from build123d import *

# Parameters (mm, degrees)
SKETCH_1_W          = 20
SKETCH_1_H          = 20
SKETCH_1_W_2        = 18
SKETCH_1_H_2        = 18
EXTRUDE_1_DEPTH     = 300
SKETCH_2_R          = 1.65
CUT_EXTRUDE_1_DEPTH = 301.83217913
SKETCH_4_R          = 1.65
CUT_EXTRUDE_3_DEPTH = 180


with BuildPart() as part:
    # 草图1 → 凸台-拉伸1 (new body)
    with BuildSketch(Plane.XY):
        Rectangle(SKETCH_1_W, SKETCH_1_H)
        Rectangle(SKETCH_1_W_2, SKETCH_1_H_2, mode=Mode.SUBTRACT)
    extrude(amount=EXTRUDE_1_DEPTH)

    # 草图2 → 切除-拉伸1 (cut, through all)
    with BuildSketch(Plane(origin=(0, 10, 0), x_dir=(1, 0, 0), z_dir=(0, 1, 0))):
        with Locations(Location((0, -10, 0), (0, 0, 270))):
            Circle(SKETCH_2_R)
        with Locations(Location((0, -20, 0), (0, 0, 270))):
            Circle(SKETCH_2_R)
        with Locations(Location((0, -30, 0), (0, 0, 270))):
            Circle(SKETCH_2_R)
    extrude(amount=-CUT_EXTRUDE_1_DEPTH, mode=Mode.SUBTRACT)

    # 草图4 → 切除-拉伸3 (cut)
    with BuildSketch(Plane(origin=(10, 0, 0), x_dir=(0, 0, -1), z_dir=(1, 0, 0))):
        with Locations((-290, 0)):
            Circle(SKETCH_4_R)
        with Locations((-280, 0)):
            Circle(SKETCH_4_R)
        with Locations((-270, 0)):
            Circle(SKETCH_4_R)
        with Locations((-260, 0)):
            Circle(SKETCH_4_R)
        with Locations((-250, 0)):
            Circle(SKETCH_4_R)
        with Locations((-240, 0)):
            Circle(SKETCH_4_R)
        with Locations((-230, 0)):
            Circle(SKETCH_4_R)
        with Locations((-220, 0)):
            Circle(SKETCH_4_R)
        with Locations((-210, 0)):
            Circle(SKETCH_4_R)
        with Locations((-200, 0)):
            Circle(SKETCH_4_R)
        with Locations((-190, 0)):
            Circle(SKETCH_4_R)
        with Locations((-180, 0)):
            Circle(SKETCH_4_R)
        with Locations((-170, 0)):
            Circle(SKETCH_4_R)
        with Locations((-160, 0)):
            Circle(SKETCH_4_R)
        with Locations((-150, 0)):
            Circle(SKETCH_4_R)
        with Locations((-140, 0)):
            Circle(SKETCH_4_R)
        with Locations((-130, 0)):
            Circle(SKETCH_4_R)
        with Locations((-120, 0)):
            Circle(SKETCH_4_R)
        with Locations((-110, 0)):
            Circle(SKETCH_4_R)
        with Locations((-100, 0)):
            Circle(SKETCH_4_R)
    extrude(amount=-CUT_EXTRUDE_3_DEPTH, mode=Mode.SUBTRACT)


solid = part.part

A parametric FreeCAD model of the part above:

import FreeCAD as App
import Part
import Sketcher

V = App.Vector
Q = App.Units.Quantity


def add_polygon(sketch, points):
    """Adds a closed chain of lines whose ends are joined by coincident constraints."""
    first, n = sketch.GeometryCount, len(points)
    for a, b in zip(points, points[1:] + points[:1]):
        sketch.addGeometry(Part.LineSegment(App.Vector(*a, 0), App.Vector(*b, 0)), False)
    for i in range(n):
        sketch.addConstraint(Sketcher.Constraint("Coincident", first + i, 2, first + (i + 1) % n, 1))

doc = App.newDocument("Part")
params = doc.addObject("Spreadsheet::Sheet", "Params")
for row, (alias, value) in enumerate([
    ("sketch1_width", "20 mm"),
    ("sketch1_width2", "18 mm"),
    ("pad1_length", "300 mm"),
    ("sketch2_diameter", "3.3 mm"),
    ("sketch3_diameter", "3.3 mm"),
    ("pocket2_length", "180 mm"),
], start=1):
    params.set(f"A{row}", alias)
    params.set(f"B{row}", "=" + value)
    params.setAlias(f"B{row}", alias)

body = doc.addObject("PartDesign::Body", "Body")

sketch1 = body.newObject("Sketcher::SketchObject", "Sketch")
sketch1.AttachmentSupport = (doc.getObject("XY_Plane"), [""])
sketch1.MapMode = "FlatFace"
add_polygon(sketch1, [(-10, 10), (-10, -10), (10, -10), (10, 10)])
add_polygon(sketch1, [(9, -9), (-9, -9), (-9, 9), (9, 9)])
sketch1.addConstraint([
    Sketcher.Constraint("Vertical", 0),
    Sketcher.Constraint("Horizontal", 1),
    Sketcher.Constraint("Vertical", 2),
    Sketcher.Constraint("Horizontal", 3),
    Sketcher.Constraint("Horizontal", 4),
    Sketcher.Constraint("Vertical", 5),
    Sketcher.Constraint("Horizontal", 6),
    Sketcher.Constraint("Vertical", 7),
    Sketcher.Constraint("Symmetric", 0, 2, 2, 2, -1, 1),
    Sketcher.Constraint("Symmetric", 4, 2, 6, 2, -1, 1),
    Sketcher.Constraint("Equal", 3, 0),
    Sketcher.Constraint("Equal", 6, 5),
    Sketcher.Constraint("DistanceX", 1, 1, 1, 2, Q("20 mm")),
    Sketcher.Constraint("DistanceX", 4, 2, 4, 1, Q("18 mm")),
])
sketch1.setExpression("Constraints[20]", "Params.sketch1_width")
sketch1.setExpression("Constraints[21]", "Params.sketch1_width2")
pad1 = body.newObject("PartDesign::Pad", "Pad")
pad1.Profile = sketch1
pad1.setExpression("Length", "Params.pad1_length")

sketch2 = body.newObject("Sketcher::SketchObject", "Sketch001")
sketch2.AttachmentSupport = (doc.getObject("XZ_Plane"), [""])
sketch2.MapMode = "FlatFace"
sketch2.AttachmentOffset = App.Placement(V(0, 0, -10), App.Rotation())
sketch2.addGeometry([
    Part.Circle(V(0, 10, 0), V(0, 0, 1), 1.6),
    Part.Circle(V(0, 20, 0), V(0, 0, 1), 1.6),
    Part.Circle(V(0, 30, 0), V(0, 0, 1), 1.6),
], False)
sketch2.addConstraint([
    Sketcher.Constraint("Equal", 0, 1),
    Sketcher.Constraint("Equal", 1, 2),
    Sketcher.Constraint("PointOnObject", 0, 3, -2),
    Sketcher.Constraint("PointOnObject", 1, 3, -2),
    Sketcher.Constraint("PointOnObject", 2, 3, -2),
    Sketcher.Constraint("Diameter", 0, Q("3.3 mm")),
    Sketcher.Constraint("DistanceY", -1, 1, 0, 3, Q("10 mm")),
    Sketcher.Constraint("DistanceY", -1, 1, 1, 3, Q("20 mm")),
    Sketcher.Constraint("DistanceY", -1, 1, 2, 3, Q("30 mm")),
])
sketch2.setExpression("Constraints[5]", "Params.sketch2_diameter")
pocket1 = body.newObject("PartDesign::Pocket", "Pocket")
pocket1.Profile = sketch2
pocket1.Type = "ThroughAll"
pocket1.Reversed = True

sketch3 = body.newObject("Sketcher::SketchObject", "Sketch002")
sketch3.AttachmentSupport = (doc.getObject("YZ_Plane"), [""])
sketch3.MapMode = "FlatFace"
sketch3.AttachmentOffset = App.Placement(V(0, 0, 10), App.Rotation())
sketch3.addGeometry([
    Part.Circle(V(0, 290, 0), V(0, 0, 1), 1.6),
    Part.Circle(V(0, 280, 0), V(0, 0, 1), 1.6),
    Part.Circle(V(0, 270, 0), V(0, 0, 1), 1.6),
    Part.Circle(V(0, 260, 0), V(0, 0, 1), 1.6),
    Part.Circle(V(0, 250, 0), V(0, 0, 1), 1.6),
    Part.Circle(V(0, 240, 0), V(0, 0, 1), 1.6),
    Part.Circle(V(0, 230, 0), V(0, 0, 1), 1.6),
    Part.Circle(V(0, 220, 0), V(0, 0, 1), 1.6),
    Part.Circle(V(0, 210, 0), V(0, 0, 1), 1.6),
    Part.Circle(V(0, 200, 0), V(0, 0, 1), 1.6),
    Part.Circle(V(0, 190, 0), V(0, 0, 1), 1.6),
    Part.Circle(V(0, 180, 0), V(0, 0, 1), 1.6),
    Part.Circle(V(0, 170, 0), V(0, 0, 1), 1.6),
    Part.Circle(V(0, 160, 0), V(0, 0, 1), 1.6),
    Part.Circle(V(0, 150, 0), V(0, 0, 1), 1.6),
    Part.Circle(V(0, 140, 0), V(0, 0, 1), 1.6),
    Part.Circle(V(0, 130, 0), V(0, 0, 1), 1.6),
    Part.Circle(V(0, 120, 0), V(0, 0, 1), 1.6),
    Part.Circle(V(0, 110, 0), V(0, 0, 1), 1.6),
    Part.Circle(V(0, 100, 0), V(0, 0, 1), 1.6),
], False)
sketch3.addConstraint([
    Sketcher.Constraint("Equal", 0, 1),
    Sketcher.Constraint("Equal", 1, 2),
    Sketcher.Constraint("Equal", 2, 3),
    Sketcher.Constraint("Equal", 3, 4),
    Sketcher.Constraint("Equal", 4, 5),
    Sketcher.Constraint("Equal", 5, 6),
    Sketcher.Constraint("Equal", 6, 7),
    Sketcher.Constraint("Equal", 7, 8),
    Sketcher.Constraint("Equal", 8, 9),
    Sketcher.Constraint("Equal", 9, 10),
    Sketcher.Constraint("Equal", 10, 11),
    Sketcher.Constraint("Equal", 11, 12),
    Sketcher.Constraint("Equal", 12, 13),
    Sketcher.Constraint("Equal", 13, 14),
    Sketcher.Constraint("Equal", 14, 15),
    Sketcher.Constraint("Equal", 15, 16),
    Sketcher.Constraint("Equal", 16, 17),
    Sketcher.Constraint("Equal", 17, 18),
    Sketcher.Constraint("Equal", 18, 19),
    Sketcher.Constraint("PointOnObject", 0, 3, -2),
    Sketcher.Constraint("PointOnObject", 1, 3, -2),
    Sketcher.Constraint("PointOnObject", 2, 3, -2),
    Sketcher.Constraint("PointOnObject", 3, 3, -2),
    Sketcher.Constraint("PointOnObject", 4, 3, -2),
    Sketcher.Constraint("PointOnObject", 5, 3, -2),
    Sketcher.Constraint("PointOnObject", 6, 3, -2),
    Sketcher.Constraint("PointOnObject", 7, 3, -2),
    Sketcher.Constraint("PointOnObject", 8, 3, -2),
    Sketcher.Constraint("PointOnObject", 9, 3, -2),
    Sketcher.Constraint("PointOnObject", 10, 3, -2),
    Sketcher.Constraint("PointOnObject", 11, 3, -2),
    Sketcher.Constraint("PointOnObject", 12, 3, -2),
    Sketcher.Constraint("PointOnObject", 13, 3, -2),
    Sketcher.Constraint("PointOnObject", 14, 3, -2),
    Sketcher.Constraint("PointOnObject", 15, 3, -2),
    Sketcher.Constraint("PointOnObject", 16, 3, -2),
    Sketcher.Constraint("PointOnObject", 17, 3, -2),
    Sketcher.Constraint("PointOnObject", 18, 3, -2),
    Sketcher.Constraint("PointOnObject", 19, 3, -2),
    Sketcher.Constraint("Diameter", 0, Q("3.3 mm")),
    Sketcher.Constraint("DistanceY", -1, 1, 0, 3, Q("290 mm")),
    Sketcher.Constraint("DistanceY", -1, 1, 1, 3, Q("280 mm")),
    Sketcher.Constraint("DistanceY", -1, 1, 2, 3, Q("270 mm")),
    Sketcher.Constraint("DistanceY", -1, 1, 3, 3, Q("260 mm")),
    Sketcher.Constraint("DistanceY", -1, 1, 4, 3, Q("250 mm")),
    Sketcher.Constraint("DistanceY", -1, 1, 5, 3, Q("240 mm")),
    Sketcher.Constraint("DistanceY", -1, 1, 6, 3, Q("230 mm")),
    Sketcher.Constraint("DistanceY", -1, 1, 7, 3, Q("220 mm")),
    Sketcher.Constraint("DistanceY", -1, 1, 8, 3, Q("210 mm")),
    Sketcher.Constraint("DistanceY", -1, 1, 9, 3, Q("200 mm")),
    Sketcher.Constraint("DistanceY", -1, 1, 10, 3, Q("190 mm")),
    Sketcher.Constraint("DistanceY", -1, 1, 11, 3, Q("180 mm")),
    Sketcher.Constraint("DistanceY", -1, 1, 12, 3, Q("170 mm")),
    Sketcher.Constraint("DistanceY", -1, 1, 13, 3, Q("160 mm")),
    Sketcher.Constraint("DistanceY", -1, 1, 14, 3, Q("150 mm")),
    Sketcher.Constraint("DistanceY", -1, 1, 15, 3, Q("140 mm")),
    Sketcher.Constraint("DistanceY", -1, 1, 16, 3, Q("130 mm")),
    Sketcher.Constraint("DistanceY", -1, 1, 17, 3, Q("120 mm")),
    Sketcher.Constraint("DistanceY", -1, 1, 18, 3, Q("110 mm")),
    Sketcher.Constraint("DistanceY", -1, 1, 19, 3, Q("100 mm")),
])
sketch3.setExpression("Constraints[39]", "Params.sketch3_diameter")
pocket2 = body.newObject("PartDesign::Pocket", "Pocket001")
pocket2.Profile = sketch3
pocket2.setExpression("Length", "Params.pocket2_length")

doc.recompute()
